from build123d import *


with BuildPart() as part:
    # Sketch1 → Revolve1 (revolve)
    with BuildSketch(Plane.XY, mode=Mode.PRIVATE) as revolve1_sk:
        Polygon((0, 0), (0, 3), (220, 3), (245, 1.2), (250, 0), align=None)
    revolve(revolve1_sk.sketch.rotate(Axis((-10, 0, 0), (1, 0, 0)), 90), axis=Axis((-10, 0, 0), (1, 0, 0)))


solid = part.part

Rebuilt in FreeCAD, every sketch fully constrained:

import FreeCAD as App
import Part
import Sketcher

V = App.Vector


def add_polygon(sketch, points):
    """Adds a closed chain of lines whose ends are joined by coincident constraints."""
    first, n = sketch.GeometryCount, len(points)
    for a, b in zip(points, points[1:] + points[:1]):
        sketch.addGeometry(Part.LineSegment(App.Vector(*a, 0), App.Vector(*b, 0)), False)
    for i in range(n):
        sketch.addConstraint(Sketcher.Constraint("Coincident", first + i, 2, first + (i + 1) % n, 1))

doc = App.newDocument("Part")
body = doc.addObject("PartDesign::Body", "Body")

# Sketch on XY plane
sketch1 = body.newObject("Sketcher::SketchObject", "Sketch")
sketch1.AttachmentSupport = (doc.getObject("XY_Plane"), [""])
sketch1.MapMode = "FlatFace"
add_polygon(sketch1, [(0, 3), (0, 0), (250, 0), (245, 1.2), (220, 3)])  # lines 0-4
sketch1.addConstraint(Sketcher.Constraint("Vertical", 0))
sketch1.addConstraint(Sketcher.Constraint("Horizontal", 1))
sketch1.addConstraint(Sketcher.Constraint("Horizontal", 4))
sketch1.addConstraint(Sketcher.Constraint("Coincident", 0, 2, -1, 1))
sketch1.addConstraint(Sketcher.Constraint("DistanceX", 1, 1, 1, 2, 250.0))
sketch1.addConstraint(Sketcher.Constraint("DistanceX", 4, 2, 4, 1, 220.0))
sketch1.addConstraint(Sketcher.Constraint("DistanceY", 0, 2, 0, 1, 3.0))
sketch1.addConstraint(Sketcher.Constraint("DistanceX", -1, 1, 2, 2, 245.0))
sketch1.addConstraint(Sketcher.Constraint("DistanceY", -1, 1, 2, 2, 1.2))
revolution = body.newObject("PartDesign::Revolution", "Revolution")
revolution.Profile = sketch1
revolution.ReferenceAxis = (sketch1, ["H_Axis"])
revolution.Angle = 360

doc.recompute()
